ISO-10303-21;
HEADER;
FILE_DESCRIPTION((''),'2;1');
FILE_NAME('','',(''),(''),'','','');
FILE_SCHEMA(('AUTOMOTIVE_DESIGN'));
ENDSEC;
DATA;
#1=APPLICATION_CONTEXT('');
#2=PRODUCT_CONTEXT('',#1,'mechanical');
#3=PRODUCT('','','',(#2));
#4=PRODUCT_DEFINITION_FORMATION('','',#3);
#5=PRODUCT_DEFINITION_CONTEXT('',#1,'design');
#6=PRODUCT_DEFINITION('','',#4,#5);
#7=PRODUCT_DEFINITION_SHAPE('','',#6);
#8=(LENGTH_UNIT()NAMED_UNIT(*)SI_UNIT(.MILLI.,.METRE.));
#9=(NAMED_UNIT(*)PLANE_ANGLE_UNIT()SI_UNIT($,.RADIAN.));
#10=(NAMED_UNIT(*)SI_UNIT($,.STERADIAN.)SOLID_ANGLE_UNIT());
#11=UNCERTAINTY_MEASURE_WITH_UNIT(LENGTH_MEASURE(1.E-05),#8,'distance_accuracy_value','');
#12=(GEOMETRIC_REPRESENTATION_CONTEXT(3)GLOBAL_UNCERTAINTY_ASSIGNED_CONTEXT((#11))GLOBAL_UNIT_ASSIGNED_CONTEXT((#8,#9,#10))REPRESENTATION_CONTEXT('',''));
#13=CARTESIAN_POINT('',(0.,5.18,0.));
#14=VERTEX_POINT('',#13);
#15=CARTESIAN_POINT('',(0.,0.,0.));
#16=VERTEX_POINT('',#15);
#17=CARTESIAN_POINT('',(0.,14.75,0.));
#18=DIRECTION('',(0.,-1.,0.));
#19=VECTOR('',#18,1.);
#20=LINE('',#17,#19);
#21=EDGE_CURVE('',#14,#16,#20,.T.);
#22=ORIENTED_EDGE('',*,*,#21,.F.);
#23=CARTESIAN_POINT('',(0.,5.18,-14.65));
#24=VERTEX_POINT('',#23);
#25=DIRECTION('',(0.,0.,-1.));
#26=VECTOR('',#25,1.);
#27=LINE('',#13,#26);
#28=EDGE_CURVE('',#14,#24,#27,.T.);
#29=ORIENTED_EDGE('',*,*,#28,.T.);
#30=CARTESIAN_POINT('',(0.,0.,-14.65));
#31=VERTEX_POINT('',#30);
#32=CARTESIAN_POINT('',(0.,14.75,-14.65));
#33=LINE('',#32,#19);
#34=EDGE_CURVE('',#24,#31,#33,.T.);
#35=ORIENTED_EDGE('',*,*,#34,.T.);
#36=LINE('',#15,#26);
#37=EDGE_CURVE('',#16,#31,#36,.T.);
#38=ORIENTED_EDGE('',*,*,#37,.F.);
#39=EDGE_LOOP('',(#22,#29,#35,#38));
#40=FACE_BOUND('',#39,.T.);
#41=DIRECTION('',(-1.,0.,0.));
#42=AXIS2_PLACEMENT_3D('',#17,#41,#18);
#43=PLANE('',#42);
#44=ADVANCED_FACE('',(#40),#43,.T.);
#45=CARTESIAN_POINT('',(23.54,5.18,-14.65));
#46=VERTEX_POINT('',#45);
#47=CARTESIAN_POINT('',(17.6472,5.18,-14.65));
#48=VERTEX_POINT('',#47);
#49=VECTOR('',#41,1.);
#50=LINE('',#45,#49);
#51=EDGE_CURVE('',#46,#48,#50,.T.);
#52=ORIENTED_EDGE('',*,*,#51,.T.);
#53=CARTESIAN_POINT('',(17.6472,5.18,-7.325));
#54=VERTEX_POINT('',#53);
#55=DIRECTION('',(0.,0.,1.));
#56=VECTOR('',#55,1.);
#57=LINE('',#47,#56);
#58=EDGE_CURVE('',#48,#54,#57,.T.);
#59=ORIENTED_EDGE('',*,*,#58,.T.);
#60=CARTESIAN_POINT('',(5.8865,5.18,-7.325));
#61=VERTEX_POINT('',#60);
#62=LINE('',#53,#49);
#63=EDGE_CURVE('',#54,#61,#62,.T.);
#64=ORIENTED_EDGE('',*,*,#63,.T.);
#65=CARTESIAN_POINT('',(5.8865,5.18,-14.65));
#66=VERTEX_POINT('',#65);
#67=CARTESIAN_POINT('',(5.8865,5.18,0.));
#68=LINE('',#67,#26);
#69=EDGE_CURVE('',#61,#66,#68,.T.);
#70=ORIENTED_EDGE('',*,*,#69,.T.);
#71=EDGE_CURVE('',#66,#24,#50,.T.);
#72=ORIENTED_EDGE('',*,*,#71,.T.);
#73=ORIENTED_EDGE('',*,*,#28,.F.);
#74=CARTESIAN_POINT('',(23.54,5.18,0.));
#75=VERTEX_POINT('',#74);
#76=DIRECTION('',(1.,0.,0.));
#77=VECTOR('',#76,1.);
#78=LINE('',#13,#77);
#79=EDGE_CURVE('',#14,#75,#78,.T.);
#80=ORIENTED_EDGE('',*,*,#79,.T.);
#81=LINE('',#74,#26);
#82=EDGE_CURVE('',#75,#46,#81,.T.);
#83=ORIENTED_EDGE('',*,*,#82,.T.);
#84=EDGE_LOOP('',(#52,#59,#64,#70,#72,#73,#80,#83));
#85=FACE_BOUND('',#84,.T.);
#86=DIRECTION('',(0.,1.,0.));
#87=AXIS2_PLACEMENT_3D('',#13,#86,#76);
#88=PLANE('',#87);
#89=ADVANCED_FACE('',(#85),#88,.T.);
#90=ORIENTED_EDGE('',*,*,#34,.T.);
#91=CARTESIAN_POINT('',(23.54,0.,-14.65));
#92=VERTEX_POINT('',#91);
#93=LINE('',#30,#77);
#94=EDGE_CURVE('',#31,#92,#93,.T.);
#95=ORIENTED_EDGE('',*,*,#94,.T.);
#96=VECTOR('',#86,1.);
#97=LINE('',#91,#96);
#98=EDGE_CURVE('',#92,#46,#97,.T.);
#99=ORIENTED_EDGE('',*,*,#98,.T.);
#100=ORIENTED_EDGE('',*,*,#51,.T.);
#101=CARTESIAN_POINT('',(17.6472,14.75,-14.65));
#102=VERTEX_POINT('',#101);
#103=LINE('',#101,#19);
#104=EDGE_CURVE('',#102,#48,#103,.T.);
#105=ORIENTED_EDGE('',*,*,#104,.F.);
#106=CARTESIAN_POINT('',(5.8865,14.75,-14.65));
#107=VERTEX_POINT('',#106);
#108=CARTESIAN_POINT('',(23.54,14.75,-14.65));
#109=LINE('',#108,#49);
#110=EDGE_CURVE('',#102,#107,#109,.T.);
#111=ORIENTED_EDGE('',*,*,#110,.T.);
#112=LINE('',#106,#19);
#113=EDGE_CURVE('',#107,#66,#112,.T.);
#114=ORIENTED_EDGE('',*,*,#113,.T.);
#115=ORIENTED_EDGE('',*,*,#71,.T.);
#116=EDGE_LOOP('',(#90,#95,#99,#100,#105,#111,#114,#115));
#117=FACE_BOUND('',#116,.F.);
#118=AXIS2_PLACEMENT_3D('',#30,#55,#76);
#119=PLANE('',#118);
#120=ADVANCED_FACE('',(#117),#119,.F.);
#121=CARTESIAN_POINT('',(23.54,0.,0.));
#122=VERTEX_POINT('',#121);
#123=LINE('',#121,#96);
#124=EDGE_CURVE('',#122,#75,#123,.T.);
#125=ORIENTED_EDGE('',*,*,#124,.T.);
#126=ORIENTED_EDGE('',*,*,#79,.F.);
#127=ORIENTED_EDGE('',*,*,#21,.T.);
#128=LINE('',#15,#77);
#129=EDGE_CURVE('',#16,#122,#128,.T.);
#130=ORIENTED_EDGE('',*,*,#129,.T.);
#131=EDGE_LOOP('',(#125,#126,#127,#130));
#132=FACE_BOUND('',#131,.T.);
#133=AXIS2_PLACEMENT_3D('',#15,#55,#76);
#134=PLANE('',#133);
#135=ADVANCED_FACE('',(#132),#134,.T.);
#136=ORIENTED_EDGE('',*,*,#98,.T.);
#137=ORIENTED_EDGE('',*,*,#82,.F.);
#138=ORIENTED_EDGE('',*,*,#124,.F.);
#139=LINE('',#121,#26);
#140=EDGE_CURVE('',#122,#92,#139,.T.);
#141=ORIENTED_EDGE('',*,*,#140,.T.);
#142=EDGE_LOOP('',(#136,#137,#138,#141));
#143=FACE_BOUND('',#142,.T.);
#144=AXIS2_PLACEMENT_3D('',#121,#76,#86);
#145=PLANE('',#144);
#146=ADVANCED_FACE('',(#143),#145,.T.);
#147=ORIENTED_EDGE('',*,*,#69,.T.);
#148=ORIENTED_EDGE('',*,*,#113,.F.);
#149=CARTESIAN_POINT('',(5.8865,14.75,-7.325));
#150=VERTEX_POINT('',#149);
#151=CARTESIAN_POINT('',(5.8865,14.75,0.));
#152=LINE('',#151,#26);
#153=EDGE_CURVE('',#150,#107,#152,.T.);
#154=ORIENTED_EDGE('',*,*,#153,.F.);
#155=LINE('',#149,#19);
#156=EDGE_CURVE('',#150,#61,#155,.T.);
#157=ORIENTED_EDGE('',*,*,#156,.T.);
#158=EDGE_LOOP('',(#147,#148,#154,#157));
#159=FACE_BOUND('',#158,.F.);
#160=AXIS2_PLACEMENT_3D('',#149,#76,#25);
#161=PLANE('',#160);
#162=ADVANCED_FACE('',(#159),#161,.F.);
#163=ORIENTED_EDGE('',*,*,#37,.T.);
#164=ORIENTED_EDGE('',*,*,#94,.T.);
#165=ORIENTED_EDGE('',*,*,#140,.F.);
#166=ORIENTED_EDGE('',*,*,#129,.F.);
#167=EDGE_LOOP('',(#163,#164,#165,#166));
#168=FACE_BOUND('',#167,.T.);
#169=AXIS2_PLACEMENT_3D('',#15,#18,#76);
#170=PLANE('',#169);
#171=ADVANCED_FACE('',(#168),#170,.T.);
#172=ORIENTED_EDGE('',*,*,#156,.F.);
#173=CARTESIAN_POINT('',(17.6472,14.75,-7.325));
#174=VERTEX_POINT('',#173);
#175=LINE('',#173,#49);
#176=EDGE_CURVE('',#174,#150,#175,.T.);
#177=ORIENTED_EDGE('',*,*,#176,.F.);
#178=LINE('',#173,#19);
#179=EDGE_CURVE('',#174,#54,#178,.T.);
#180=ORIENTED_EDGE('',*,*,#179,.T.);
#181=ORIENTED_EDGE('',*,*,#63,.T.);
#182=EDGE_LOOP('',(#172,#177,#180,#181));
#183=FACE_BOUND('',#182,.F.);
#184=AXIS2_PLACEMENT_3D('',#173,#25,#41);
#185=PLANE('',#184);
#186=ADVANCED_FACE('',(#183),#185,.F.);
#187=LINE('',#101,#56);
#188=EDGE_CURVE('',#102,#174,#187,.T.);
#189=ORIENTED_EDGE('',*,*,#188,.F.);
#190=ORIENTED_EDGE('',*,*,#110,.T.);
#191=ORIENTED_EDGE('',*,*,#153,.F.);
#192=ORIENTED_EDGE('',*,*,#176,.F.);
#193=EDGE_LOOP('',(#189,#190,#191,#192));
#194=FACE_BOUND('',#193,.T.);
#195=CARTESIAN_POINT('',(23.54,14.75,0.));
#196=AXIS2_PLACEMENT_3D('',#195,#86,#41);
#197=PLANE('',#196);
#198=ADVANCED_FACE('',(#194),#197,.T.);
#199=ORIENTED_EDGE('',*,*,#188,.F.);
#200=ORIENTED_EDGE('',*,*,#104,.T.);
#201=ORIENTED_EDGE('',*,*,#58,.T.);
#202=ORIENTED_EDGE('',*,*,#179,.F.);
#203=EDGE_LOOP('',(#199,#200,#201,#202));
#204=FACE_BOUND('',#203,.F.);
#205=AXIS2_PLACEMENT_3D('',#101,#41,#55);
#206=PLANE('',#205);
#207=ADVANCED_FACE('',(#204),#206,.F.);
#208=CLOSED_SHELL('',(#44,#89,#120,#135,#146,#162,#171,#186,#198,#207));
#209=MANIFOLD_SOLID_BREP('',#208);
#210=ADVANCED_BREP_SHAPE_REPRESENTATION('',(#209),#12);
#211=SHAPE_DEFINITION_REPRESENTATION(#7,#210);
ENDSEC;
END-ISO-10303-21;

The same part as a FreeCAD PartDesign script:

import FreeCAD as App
import Part
import Sketcher
from FreeCAD import Vector
Q = App.Units.Quantity


def add_polygon(sketch, points):
    """Adds a closed chain of lines whose ends are joined by coincident constraints."""
    first, n = sketch.GeometryCount, len(points)
    for a, b in zip(points, points[1:] + points[:1]):
        sketch.addGeometry(Part.LineSegment(App.Vector(*a, 0), App.Vector(*b, 0)), False)
    for i in range(n):
        sketch.addConstraint(Sketcher.Constraint("Coincident", first + i, 2, first + (i + 1) % n, 1))

doc = App.newDocument("Part")
body = doc.addObject("PartDesign::Body", "Body")

sketch1 = doc.addObject("Sketcher::SketchObject", "Sketch")
body.addObject(sketch1)
sketch1.AttachmentSupport = (doc.XY_Plane, [""])
sketch1.MapMode = "FlatFace"
add_polygon(sketch1, [(0, 15), (0, 0), (24, 0), (24, 15)])
sketch1.addConstraint([
    Sketcher.Constraint("Vertical", 0),
    Sketcher.Constraint("Horizontal", 1),
    Sketcher.Constraint("Vertical", 2),
    Sketcher.Constraint("Horizontal", 3),
    Sketcher.Constraint("Coincident", 0, 2, -1, 1),
    Sketcher.Constraint("DistanceY", 0, 2, 0, 1, Q("0.5807 in")),
    Sketcher.Constraint("DistanceX", 1, 1, 1, 2, Q("23.54 mm")),
])
pad1 = doc.addObject("PartDesign::Pad", "Pad")
body.addObject(pad1)
pad1.Profile = sketch1
pad1.Length = 14.65
pad1.Reversed = True

sketch2 = doc.addObject("Sketcher::SketchObject", "Sketch001")
body.addObject(sketch2)
sketch2.AttachmentSupport = (doc.XZ_Plane, [""])
sketch2.MapMode = "FlatFace"
sketch2.AttachmentOffset = App.Placement(Vector(0, 0, -0.5807087 * 25.4), App.Rotation())
add_polygon(sketch2, [(24, 0), (24, -15), (18, -15), (18, -7), (6, -7), (6, -15), (0, -15), (0, 0)])
sketch2.addConstraint([
    Sketcher.Constraint("Vertical", 0),
    Sketcher.Constraint("Horizontal", 1),
    Sketcher.Constraint("Vertical", 2),
    Sketcher.Constraint("Horizontal", 3),
    Sketcher.Constraint("Vertical", 4),
    Sketcher.Constraint("Horizontal", 5),
    Sketcher.Constraint("Vertical", 6),
    Sketcher.Constraint("Horizontal", 7),
    Sketcher.Constraint("Coincident", 6, 2, -1, 1),
    Sketcher.Constraint("Horizontal", 1, 2, 4, 2),
    Sketcher.Constraint("DistanceX", 1, 2, 1, 1, Q("0.232 in")),
    Sketcher.Constraint("DistanceX", 5, 2, 5, 1, Q("5.8865 mm")),
    Sketcher.Constraint("DistanceX", 3, 2, 3, 1, Q("11.7607 mm")),
    Sketcher.Constraint("DistanceY", 0, 2, 0, 1, Q("14.65 mm")),
    Sketcher.Constraint("DistanceY", 2, 1, 2, 2, Q("7.325 mm")),
])
pocket1 = doc.addObject("PartDesign::Pocket", "Pocket")
body.addObject(pocket1)
pocket1.Profile = sketch2
pocket1.Length = 9.57
pocket1.Reversed = True

doc.recompute()
